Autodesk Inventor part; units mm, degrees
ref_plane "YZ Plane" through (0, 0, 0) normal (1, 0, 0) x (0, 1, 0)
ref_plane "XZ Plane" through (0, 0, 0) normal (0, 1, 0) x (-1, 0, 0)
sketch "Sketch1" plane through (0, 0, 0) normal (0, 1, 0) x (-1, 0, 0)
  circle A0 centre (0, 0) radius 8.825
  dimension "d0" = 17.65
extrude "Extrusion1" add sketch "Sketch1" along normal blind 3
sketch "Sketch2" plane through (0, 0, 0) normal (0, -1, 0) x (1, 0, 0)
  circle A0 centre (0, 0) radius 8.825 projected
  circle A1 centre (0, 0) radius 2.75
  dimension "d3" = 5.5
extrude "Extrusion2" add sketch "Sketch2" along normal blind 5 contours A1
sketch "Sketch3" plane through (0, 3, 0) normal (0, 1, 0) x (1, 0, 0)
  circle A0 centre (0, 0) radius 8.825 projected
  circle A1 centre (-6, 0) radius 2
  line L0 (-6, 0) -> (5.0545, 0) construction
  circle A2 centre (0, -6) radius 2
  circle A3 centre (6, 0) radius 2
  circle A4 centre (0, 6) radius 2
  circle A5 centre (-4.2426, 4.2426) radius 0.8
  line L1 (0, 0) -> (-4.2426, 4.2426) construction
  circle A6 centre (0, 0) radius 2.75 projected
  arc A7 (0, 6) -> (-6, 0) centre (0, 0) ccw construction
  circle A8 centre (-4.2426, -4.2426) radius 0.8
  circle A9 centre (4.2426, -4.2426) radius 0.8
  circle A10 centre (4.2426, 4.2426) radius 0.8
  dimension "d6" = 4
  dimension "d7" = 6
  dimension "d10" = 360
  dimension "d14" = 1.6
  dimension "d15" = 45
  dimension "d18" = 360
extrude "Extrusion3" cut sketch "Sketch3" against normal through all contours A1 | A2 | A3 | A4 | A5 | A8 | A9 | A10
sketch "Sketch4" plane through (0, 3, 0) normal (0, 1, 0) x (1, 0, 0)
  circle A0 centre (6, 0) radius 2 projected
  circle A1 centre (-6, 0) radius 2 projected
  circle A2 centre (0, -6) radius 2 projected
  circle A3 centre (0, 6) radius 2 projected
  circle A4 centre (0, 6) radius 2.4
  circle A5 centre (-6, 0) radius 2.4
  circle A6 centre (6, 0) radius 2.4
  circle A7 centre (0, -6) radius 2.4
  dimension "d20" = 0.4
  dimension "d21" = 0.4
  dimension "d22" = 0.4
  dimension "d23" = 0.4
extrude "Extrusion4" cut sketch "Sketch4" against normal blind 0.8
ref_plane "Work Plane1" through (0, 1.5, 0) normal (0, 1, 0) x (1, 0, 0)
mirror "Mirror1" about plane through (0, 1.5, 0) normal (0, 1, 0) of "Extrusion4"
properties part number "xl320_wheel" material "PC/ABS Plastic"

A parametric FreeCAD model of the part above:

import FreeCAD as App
import Part
import Sketcher

V = App.Vector
Q = App.Units.Quantity

doc = App.newDocument("Part")
body = doc.addObject("PartDesign::Body", "Body")

sketch1 = body.newObject("Sketcher::SketchObject", "Sketch")
sketch1.AttachmentSupport = (doc.getObject("XZ_Plane"), [""])
sketch1.MapMode = "FlatFace"
sketch1.addGeometry(Part.Circle(V(0, 0, 0), V(0, 0, 1), 9), False)
sketch1.addConstraint([
    Sketcher.Constraint("Coincident", 0, 3, -1, 1),
    Sketcher.Constraint("Diameter", 0, Q("17.65 mm")),
])
pad1 = body.newObject("PartDesign::Pad", "Pad")
pad1.Profile = sketch1
pad1.Length = 3
pad1.Reversed = True

sketch2 = body.newObject("Sketcher::SketchObject", "Sketch001")
sketch2.AttachmentSupport = (doc.getObject("XZ_Plane"), [""])
sketch2.MapMode = "FlatFace"
sketch2.addGeometry(Part.Circle(V(0, 0, 0), V(0, 0, 1), 2.8), False)
sketch2.addConstraint([
    Sketcher.Constraint("Coincident", 0, 3, -1, 1),
    Sketcher.Constraint("Diameter", 0, Q("5.5 mm")),
])
pad2 = body.newObject("PartDesign::Pad", "Pad001")
pad2.Profile = sketch2
pad2.Length = 5

sketch3 = body.newObject("Sketcher::SketchObject", "Sketch002")
sketch3.AttachmentSupport = (doc.getObject("XZ_Plane"), [""])
sketch3.MapMode = "FlatFace"
sketch3.AttachmentOffset = App.Placement(V(0, 0, -3), App.Rotation())
sketch3.addGeometry([
    Part.Circle(V(-6, 0, 0), V(0, 0, 1), 2),
    Part.Circle(V(0, 6, 0), V(0, 0, 1), 2),
    Part.Circle(V(6, 0, 0), V(0, 0, 1), 2),
    Part.Circle(V(0, -6, 0), V(0, 0, 1), 2),
    Part.Circle(V(-4.2, -4.2, 0), V(0, 0, 1), 0.8),
    Part.Circle(V(-4.2, 4.2, 0), V(0, 0, 1), 0.8),
    Part.Circle(V(4.2, 4.2, 0), V(0, 0, 1), 0.8),
    Part.Circle(V(4.2, -4.2, 0), V(0, 0, 1), 0.8),
], False)
sketch3.addConstraint([
    Sketcher.Constraint("Equal", 0, 1),
    Sketcher.Constraint("Equal", 1, 2),
    Sketcher.Constraint("Equal", 2, 3),
    Sketcher.Constraint("Equal", 4, 5),
    Sketcher.Constraint("Equal", 5, 6),
    Sketcher.Constraint("Equal", 6, 7),
    Sketcher.Constraint("Symmetric", 0, 3, 2, 3, -1, 1),
    Sketcher.Constraint("Symmetric", 1, 3, 3, 3, -1, 1),
    Sketcher.Constraint("Symmetric", 4, 3, 6, 3, -1, 1),
    Sketcher.Constraint("Symmetric", 5, 3, 7, 3, -1, 1),
    Sketcher.Constraint("Symmetric", 5, 3, 6, 3, -2),
    Sketcher.Constraint("PointOnObject", 0, 3, -1),
    Sketcher.Constraint("PointOnObject", 1, 3, -2),
    Sketcher.Constraint("Diameter", 0, Q("4 mm")),
    Sketcher.Constraint("Diameter", 4, Q("1.6 mm")),
    Sketcher.Constraint("DistanceX", 0, 3, -1, 1, Q("6 mm")),
    Sketcher.Constraint("DistanceY", -1, 1, 1, 3, Q("6 mm")),
    Sketcher.Constraint("DistanceX", 4, 3, -1, 1, Q("4.2426 mm")),
    Sketcher.Constraint("DistanceY", 4, 3, -1, 1, Q("4.2426 mm")),
])
pocket1 = body.newObject("PartDesign::Pocket", "Pocket")
pocket1.Profile = sketch3
pocket1.Type = "ThroughAll"
pocket1.Reversed = True

sketch4 = body.newObject("Sketcher::SketchObject", "Sketch003")
sketch4.AttachmentSupport = (doc.getObject("XZ_Plane"), [""])
sketch4.MapMode = "FlatFace"
sketch4.AttachmentOffset = App.Placement(V(0, 0, -3), App.Rotation())
sketch4.addGeometry([
    Part.Circle(V(0, -6, 0), V(0, 0, 1), 2.4),
    Part.Circle(V(0, -6, 0), V(0, 0, 1), 2),
    Part.Circle(V(-6, 0, 0), V(0, 0, 1), 2.4),
    Part.Circle(V(-6, 0, 0), V(0, 0, 1), 2),
    Part.Circle(V(6, 0, 0), V(0, 0, 1), 2.4),
    Part.Circle(V(6, 0, 0), V(0, 0, 1), 2),
    Part.Circle(V(0, 6, 0), V(0, 0, 1), 2.4),
    Part.Circle(V(0, 6, 0), V(0, 0, 1), 2),
], False)
sketch4.addConstraint([
    Sketcher.Constraint("Coincident", 1, 3, 0, 3),
    Sketcher.Constraint("Coincident", 3, 3, 2, 3),
    Sketcher.Constraint("Coincident", 5, 3, 4, 3),
    Sketcher.Constraint("Coincident", 7, 3, 6, 3),
    Sketcher.Constraint("Equal", 0, 2),
    Sketcher.Constraint("Equal", 1, 3),
    Sketcher.Constraint("Equal", 2, 4),
    Sketcher.Constraint("Equal", 3, 5),
    Sketcher.Constraint("Equal", 4, 6),
    Sketcher.Constraint("Equal", 5, 7),
    Sketcher.Constraint("Symmetric", 2, 3, 4, 3, -1, 1),
    Sketcher.Constraint("Symmetric", 0, 3, 6, 3, -1, 1),
    Sketcher.Constraint("PointOnObject", 0, 3, -2),
    Sketcher.Constraint("PointOnObject", 2, 3, -1),
    Sketcher.Constraint("Diameter", 1, Q("4 mm")),
    Sketcher.Constraint("Diameter", 0, Q("4.8 mm")),
    Sketcher.Constraint("DistanceY", 0, 3, -1, 1, Q("6 mm")),
    Sketcher.Constraint("DistanceX", 2, 3, -1, 1, Q("6 mm")),
])
pocket2 = body.newObject("PartDesign::Pocket", "Pocket001")
pocket2.Profile = sketch4
pocket2.Length = 0.8
pocket2.Reversed = True
doc.recompute()

datumplane = body.newObject("PartDesign::Plane", "DatumPlane")
datumplane.AttachmentSupport = (doc.getObject("XZ_Plane"), [""])
datumplane.MapMode = "FlatFace"
datumplane.AttachmentOffset = App.Placement(V(0, 0, -1.5), App.Rotation())
mirrored = body.newObject("PartDesign::Mirrored", "Mirrored")
mirrored.Originals = [pocket2]
mirrored.MirrorPlane = (datumplane, [""])
body.Tip = mirrored

doc.recompute()
